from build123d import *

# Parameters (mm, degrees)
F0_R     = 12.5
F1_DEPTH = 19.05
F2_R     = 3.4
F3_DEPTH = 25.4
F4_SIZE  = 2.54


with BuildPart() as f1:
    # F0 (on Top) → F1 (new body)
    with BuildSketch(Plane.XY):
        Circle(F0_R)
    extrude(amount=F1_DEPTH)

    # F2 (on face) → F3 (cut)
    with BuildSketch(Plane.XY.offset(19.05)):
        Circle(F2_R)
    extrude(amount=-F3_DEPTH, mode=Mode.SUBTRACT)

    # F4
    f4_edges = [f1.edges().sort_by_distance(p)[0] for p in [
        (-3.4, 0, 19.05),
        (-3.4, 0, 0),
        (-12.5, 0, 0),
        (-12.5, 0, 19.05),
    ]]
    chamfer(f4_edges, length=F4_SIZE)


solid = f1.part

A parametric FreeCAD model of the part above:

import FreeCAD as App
import Part
import Sketcher
Q = App.Units.Quantity


def edges_at(feature, points):
    """Names of the edges that pass closest to the given points."""
    edges = feature.Shape.Edges
    near = lambda p: min(range(len(edges)), key=lambda i: edges[i].distToShape(Part.Vertex(*p))[0])
    return sorted({f"Edge{near(p) + 1}" for p in points})

doc = App.newDocument("Part")
body = doc.addObject("PartDesign::Body", "Body")

# Sketch on XY plane
sketch1 = body.newObject("Sketcher::SketchObject", "Sketch")
sketch1.AttachmentSupport = (doc.getObject("XY_Plane"), [""])
sketch1.MapMode = "FlatFace"
sketch1.addGeometry(Part.Circle(App.Vector(0, 0, 0), App.Vector(0, 0, 1), 12), False)
sketch1.addConstraint([
    Sketcher.Constraint("Coincident", 0, 3, -1, 1),
    Sketcher.Constraint("Diameter", 0, Q("25 mm")),
])
pad1 = body.newObject("PartDesign::Pad", "Pad")
pad1.Profile = sketch1
pad1.Length = Q("0.75 in")

# Sketch on XY plane
sketch2 = body.newObject("Sketcher::SketchObject", "Sketch001")
sketch2.AttachmentSupport = (doc.getObject("XY_Plane"), [""])
sketch2.MapMode = "FlatFace"
sketch2.AttachmentOffset = App.Placement(App.Vector(0, 0, 0.75 * 25.4), App.Rotation())
sketch2.addGeometry(Part.Circle(App.Vector(0, 0, 0), App.Vector(0, 0, 1), 3.4), False)
sketch2.addConstraint([
    Sketcher.Constraint("Coincident", 0, 3, -1, 1),
    Sketcher.Constraint("Diameter", 0, Q("6.8 mm")),
])
pocket1 = body.newObject("PartDesign::Pocket", "Pocket")
pocket1.Profile = sketch2
pocket1.Length = Q("1 in")
doc.recompute()

chamfer = body.newObject("PartDesign::Chamfer", "Chamfer")
chamfer.Base = (pocket1, edges_at(pocket1, [
    (-3.4, 0, 19.05),
    (-3.4, 0, 0),
    (-12.5, 0, 0),
    (-12.5, 0, 19.05),
]))
chamfer.Size = Q("0.1 in")

doc.recompute()
